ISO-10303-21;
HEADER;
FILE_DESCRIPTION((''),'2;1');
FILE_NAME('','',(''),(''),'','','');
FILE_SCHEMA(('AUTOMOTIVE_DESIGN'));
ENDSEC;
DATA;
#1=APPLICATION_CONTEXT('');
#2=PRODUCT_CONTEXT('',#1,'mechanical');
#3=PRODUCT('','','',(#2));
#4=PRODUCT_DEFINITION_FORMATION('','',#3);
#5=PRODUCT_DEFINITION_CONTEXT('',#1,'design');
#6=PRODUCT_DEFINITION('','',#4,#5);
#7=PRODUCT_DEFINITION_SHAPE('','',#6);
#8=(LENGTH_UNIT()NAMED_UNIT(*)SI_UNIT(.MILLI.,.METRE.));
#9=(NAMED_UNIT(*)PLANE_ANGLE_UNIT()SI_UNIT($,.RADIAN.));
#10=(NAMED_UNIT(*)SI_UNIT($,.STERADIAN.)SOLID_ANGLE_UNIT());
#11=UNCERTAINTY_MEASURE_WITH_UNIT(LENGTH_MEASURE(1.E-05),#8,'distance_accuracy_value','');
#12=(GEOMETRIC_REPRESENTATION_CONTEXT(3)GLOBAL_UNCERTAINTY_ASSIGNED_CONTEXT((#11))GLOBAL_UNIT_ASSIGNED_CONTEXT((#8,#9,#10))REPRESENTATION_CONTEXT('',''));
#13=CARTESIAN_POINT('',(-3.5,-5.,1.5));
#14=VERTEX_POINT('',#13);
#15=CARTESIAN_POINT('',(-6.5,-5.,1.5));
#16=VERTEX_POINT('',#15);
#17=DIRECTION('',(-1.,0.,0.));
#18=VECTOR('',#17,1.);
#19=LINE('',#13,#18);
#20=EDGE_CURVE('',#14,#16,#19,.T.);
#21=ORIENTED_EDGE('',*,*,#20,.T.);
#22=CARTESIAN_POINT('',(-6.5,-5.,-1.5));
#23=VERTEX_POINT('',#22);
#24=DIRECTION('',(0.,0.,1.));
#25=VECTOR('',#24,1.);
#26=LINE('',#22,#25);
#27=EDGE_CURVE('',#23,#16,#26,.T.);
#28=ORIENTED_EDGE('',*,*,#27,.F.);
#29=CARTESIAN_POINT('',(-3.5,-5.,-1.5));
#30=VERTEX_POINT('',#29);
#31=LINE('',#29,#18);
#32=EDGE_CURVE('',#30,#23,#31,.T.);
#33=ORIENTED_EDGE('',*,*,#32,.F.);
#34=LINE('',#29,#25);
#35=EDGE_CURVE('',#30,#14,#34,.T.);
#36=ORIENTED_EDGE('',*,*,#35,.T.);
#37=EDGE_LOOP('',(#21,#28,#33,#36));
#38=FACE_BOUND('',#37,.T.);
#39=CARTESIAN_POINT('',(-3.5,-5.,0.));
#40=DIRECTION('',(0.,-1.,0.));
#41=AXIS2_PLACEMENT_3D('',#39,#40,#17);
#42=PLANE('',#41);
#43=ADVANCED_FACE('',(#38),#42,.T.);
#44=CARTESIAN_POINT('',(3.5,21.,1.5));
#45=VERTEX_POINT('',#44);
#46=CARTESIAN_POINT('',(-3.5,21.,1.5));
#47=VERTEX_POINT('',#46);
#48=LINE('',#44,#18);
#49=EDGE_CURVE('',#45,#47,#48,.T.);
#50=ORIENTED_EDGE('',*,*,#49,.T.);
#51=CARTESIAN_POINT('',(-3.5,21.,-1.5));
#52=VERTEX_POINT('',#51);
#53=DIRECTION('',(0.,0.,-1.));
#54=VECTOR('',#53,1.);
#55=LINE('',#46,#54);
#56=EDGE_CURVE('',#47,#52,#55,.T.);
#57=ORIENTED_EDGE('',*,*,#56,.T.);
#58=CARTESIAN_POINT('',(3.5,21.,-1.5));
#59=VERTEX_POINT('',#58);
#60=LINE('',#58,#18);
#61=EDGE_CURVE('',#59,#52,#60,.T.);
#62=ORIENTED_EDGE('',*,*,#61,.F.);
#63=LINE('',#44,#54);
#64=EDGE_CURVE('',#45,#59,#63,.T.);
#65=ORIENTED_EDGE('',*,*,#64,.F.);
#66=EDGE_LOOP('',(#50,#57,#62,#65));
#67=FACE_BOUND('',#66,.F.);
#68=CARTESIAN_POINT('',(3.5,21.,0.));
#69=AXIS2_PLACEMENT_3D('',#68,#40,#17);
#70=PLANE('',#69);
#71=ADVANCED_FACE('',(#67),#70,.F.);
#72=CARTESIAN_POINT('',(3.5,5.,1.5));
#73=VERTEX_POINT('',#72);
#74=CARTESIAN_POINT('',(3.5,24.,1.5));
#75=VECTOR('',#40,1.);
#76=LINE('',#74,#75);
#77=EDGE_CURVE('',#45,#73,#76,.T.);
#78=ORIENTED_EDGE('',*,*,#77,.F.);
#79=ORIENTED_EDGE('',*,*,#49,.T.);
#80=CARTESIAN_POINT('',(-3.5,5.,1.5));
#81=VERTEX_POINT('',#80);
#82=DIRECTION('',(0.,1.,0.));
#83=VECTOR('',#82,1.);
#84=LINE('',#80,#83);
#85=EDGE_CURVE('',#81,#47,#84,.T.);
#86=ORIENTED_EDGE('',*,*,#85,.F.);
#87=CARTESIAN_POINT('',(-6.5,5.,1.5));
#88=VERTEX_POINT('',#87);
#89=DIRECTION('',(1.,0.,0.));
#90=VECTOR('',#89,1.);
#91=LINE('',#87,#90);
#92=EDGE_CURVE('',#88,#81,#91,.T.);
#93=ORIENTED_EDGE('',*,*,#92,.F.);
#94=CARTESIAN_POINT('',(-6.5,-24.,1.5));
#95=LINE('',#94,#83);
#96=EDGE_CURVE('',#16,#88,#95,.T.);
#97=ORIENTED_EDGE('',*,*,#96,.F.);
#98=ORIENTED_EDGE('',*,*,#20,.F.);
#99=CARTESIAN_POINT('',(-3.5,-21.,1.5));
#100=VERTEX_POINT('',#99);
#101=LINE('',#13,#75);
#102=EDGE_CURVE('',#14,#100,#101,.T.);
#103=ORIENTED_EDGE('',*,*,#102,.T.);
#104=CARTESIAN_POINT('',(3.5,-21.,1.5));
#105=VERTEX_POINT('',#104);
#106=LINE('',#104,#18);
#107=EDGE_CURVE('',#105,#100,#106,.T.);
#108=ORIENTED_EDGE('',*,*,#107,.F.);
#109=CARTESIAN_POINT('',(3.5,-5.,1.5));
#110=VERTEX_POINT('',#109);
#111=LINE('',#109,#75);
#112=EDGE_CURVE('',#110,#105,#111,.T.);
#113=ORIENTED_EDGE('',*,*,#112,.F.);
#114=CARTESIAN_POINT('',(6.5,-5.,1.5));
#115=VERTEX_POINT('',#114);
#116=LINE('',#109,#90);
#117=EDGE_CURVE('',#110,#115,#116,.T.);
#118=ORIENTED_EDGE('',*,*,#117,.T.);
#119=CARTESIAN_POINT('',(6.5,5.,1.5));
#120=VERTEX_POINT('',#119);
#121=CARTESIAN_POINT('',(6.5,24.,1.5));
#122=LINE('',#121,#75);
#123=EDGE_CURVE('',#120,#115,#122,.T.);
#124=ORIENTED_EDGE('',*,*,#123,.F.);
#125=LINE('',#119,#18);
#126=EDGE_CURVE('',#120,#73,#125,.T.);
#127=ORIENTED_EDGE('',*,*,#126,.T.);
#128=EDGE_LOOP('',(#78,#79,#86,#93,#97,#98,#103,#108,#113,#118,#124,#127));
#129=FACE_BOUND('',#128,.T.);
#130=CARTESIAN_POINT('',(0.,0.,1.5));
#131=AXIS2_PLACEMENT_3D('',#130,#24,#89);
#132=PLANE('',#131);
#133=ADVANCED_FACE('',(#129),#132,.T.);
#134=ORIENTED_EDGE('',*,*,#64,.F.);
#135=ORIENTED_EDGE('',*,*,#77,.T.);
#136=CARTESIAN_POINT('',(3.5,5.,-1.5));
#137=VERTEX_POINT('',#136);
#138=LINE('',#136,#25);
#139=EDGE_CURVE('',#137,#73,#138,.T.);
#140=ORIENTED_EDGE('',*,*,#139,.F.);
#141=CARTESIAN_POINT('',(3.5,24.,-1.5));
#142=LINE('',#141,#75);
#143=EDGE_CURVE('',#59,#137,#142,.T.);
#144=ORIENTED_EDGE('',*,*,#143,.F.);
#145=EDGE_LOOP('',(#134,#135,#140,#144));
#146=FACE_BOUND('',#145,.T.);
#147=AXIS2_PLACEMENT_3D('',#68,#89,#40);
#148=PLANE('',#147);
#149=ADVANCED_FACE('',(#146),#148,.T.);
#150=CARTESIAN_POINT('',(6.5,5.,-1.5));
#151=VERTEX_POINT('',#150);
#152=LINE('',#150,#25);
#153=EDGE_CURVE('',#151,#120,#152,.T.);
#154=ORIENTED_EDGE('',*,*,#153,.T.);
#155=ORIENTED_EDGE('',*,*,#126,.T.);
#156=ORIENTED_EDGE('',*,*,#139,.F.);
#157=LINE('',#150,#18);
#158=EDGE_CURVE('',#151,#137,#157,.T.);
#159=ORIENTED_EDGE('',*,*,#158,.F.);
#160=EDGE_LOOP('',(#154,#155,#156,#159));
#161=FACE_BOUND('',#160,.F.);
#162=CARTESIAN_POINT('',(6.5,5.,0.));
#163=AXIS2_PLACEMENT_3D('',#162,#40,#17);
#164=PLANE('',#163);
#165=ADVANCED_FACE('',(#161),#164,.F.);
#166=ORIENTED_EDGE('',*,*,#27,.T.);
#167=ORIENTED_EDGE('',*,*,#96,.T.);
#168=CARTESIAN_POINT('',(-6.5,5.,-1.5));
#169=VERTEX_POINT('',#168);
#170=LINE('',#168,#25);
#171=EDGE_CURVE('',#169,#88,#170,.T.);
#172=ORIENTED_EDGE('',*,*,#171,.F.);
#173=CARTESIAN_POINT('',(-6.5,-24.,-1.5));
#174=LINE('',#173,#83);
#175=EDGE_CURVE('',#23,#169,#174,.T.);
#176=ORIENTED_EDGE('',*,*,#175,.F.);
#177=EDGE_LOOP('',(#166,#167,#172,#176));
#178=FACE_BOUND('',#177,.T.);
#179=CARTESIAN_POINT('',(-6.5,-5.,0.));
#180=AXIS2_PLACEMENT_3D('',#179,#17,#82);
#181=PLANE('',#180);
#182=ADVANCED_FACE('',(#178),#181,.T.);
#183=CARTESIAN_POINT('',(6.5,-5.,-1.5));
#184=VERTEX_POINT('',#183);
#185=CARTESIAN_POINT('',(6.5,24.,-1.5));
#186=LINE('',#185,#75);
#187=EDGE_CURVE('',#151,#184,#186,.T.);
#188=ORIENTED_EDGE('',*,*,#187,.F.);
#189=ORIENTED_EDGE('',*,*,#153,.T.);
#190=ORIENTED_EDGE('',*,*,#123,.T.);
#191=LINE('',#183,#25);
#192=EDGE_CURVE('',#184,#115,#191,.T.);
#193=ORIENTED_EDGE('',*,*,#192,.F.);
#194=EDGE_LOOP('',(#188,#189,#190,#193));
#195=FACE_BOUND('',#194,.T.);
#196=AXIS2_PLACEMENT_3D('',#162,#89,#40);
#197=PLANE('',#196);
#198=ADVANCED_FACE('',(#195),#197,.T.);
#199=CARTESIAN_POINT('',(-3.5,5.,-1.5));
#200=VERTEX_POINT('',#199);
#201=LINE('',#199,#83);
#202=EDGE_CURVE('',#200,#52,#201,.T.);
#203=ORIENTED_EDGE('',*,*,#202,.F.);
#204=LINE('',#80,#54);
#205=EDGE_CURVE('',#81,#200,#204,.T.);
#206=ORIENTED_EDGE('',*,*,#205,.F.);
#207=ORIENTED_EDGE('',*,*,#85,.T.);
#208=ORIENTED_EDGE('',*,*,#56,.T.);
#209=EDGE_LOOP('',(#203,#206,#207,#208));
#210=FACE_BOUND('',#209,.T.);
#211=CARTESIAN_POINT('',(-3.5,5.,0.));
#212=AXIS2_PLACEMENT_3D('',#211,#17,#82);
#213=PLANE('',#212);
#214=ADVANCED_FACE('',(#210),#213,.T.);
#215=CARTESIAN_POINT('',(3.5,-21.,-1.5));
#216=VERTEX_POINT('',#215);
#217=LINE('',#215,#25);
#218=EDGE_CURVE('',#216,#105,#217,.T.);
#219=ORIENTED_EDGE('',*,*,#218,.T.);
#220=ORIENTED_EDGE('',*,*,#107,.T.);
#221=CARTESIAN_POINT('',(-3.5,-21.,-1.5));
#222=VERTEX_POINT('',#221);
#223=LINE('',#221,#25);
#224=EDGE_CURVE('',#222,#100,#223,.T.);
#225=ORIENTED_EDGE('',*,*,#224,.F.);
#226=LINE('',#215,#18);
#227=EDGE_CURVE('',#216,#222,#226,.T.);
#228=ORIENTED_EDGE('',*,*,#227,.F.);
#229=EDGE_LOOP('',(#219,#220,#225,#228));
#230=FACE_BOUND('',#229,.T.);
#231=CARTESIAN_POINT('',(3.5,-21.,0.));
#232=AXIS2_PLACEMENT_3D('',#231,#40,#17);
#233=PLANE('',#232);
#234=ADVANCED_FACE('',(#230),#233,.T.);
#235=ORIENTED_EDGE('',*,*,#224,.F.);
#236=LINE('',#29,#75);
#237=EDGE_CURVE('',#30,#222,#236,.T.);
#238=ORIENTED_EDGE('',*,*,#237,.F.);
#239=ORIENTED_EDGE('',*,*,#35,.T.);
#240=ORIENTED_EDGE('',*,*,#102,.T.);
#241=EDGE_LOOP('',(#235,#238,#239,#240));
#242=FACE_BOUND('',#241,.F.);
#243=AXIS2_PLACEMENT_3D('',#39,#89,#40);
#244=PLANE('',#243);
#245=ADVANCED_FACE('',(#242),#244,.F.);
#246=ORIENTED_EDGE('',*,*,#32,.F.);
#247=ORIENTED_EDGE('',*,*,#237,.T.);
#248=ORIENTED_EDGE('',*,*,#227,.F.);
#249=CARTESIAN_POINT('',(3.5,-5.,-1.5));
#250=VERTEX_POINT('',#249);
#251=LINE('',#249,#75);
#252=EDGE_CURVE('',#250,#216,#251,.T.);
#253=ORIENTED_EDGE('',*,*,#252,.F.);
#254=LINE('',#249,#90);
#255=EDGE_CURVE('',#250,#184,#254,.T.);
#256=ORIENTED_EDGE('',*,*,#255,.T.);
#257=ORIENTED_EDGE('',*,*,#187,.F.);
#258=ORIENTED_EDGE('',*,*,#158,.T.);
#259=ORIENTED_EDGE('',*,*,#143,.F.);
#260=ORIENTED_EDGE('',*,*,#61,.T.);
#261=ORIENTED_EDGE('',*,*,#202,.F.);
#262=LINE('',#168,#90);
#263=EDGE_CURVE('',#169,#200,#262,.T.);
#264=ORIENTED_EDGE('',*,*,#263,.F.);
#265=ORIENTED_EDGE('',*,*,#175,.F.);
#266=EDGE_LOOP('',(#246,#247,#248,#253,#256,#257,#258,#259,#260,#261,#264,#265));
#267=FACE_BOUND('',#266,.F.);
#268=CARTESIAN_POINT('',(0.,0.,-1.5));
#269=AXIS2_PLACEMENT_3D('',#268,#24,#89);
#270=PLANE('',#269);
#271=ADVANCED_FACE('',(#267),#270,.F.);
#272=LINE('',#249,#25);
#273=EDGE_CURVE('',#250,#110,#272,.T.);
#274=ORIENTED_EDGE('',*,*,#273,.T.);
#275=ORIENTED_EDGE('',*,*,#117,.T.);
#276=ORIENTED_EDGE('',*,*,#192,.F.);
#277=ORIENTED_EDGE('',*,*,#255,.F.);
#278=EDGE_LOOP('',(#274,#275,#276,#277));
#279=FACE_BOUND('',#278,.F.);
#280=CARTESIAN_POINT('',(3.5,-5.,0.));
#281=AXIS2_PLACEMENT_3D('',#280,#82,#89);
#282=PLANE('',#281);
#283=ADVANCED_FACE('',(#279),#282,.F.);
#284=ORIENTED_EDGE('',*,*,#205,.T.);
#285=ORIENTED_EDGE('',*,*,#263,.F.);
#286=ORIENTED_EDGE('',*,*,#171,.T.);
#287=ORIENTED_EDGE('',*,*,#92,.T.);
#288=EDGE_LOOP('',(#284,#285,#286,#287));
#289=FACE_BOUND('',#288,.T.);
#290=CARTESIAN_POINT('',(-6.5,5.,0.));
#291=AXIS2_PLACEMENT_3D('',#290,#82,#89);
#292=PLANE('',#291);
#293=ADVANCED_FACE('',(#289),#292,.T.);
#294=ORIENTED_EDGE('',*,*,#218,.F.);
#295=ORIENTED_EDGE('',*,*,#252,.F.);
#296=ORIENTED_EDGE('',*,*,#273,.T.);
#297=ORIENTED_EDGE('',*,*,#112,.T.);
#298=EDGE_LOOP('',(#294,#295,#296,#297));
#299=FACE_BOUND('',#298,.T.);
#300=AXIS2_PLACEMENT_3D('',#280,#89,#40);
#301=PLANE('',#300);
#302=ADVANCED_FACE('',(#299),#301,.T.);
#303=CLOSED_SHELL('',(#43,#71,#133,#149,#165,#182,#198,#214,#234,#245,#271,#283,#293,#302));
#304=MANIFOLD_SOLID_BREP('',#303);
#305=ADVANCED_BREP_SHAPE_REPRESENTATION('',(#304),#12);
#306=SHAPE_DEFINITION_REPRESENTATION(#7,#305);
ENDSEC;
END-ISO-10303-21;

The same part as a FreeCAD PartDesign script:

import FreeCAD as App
import Part
import Sketcher

V = App.Vector

doc = App.newDocument("Part")
body = doc.addObject("PartDesign::Body", "Body")

# Sketch on XY plane
sketch1 = body.newObject("Sketcher::SketchObject", "Sketch")
sketch1.AttachmentSupport = (doc.getObject("XY_Plane"), [""])
sketch1.MapMode = "FlatFace"
sketch1.addGeometry(Part.LineSegment(V(-3.5, 5, 0), V(-6.5, 5, 0)), False)
sketch1.addGeometry(Part.LineSegment(V(-6.5, 5, 0), V(-6.5, -5, 0)), False)
sketch1.addGeometry(Part.LineSegment(V(-6.5, -5, 0), V(-3.5, -5, 0)), False)
sketch1.addGeometry(Part.LineSegment(V(-3.5, -5, 0), V(-3.5, -21, 0)), False)
sketch1.addGeometry(Part.LineSegment(V(-3.5, -21, 0), V(3.5, -21, 0)), False)
sketch1.addGeometry(Part.LineSegment(V(3.5, -21, 0), V(3.5, -5, 0)), False)
sketch1.addGeometry(Part.LineSegment(V(3.5, -5, 0), V(6.5, -5, 0)), False)
sketch1.addGeometry(Part.LineSegment(V(6.5, -5, 0), V(6.5, 5, 0)), False)
sketch1.addGeometry(Part.LineSegment(V(6.5, 5, 0), V(3.5, 5, 0)), False)
sketch1.addGeometry(Part.LineSegment(V(3.5, 5, 0), V(3.5, 21, 0)), False)
sketch1.addGeometry(Part.LineSegment(V(3.5, 21, 0), V(-3.5, 21, 0)), False)
sketch1.addGeometry(Part.LineSegment(V(-3.5, 21, 0), V(-3.5, 5, 0)), False)
sketch1.addConstraint(Sketcher.Constraint("Coincident", 0, 2, 1, 1))
sketch1.addConstraint(Sketcher.Constraint("Coincident", 1, 2, 2, 1))
sketch1.addConstraint(Sketcher.Constraint("Coincident", 2, 2, 3, 1))
sketch1.addConstraint(Sketcher.Constraint("Coincident", 3, 2, 4, 1))
sketch1.addConstraint(Sketcher.Constraint("Coincident", 4, 2, 5, 1))
sketch1.addConstraint(Sketcher.Constraint("Coincident", 5, 2, 6, 1))
sketch1.addConstraint(Sketcher.Constraint("Coincident", 6, 2, 7, 1))
sketch1.addConstraint(Sketcher.Constraint("Coincident", 7, 2, 8, 1))
sketch1.addConstraint(Sketcher.Constraint("Coincident", 8, 2, 9, 1))
sketch1.addConstraint(Sketcher.Constraint("Coincident", 9, 2, 10, 1))
sketch1.addConstraint(Sketcher.Constraint("Coincident", 10, 2, 11, 1))
sketch1.addConstraint(Sketcher.Constraint("Coincident", 11, 2, 0, 1))
sketch1.addConstraint(Sketcher.Constraint("Horizontal", 0))
sketch1.addConstraint(Sketcher.Constraint("Vertical", 1))
sketch1.addConstraint(Sketcher.Constraint("Horizontal", 2))
sketch1.addConstraint(Sketcher.Constraint("Vertical", 3))
sketch1.addConstraint(Sketcher.Constraint("Horizontal", 4))
sketch1.addConstraint(Sketcher.Constraint("Vertical", 5))
sketch1.addConstraint(Sketcher.Constraint("Horizontal", 6))
sketch1.addConstraint(Sketcher.Constraint("Vertical", 7))
sketch1.addConstraint(Sketcher.Constraint("Horizontal", 8))
sketch1.addConstraint(Sketcher.Constraint("Vertical", 9))
sketch1.addConstraint(Sketcher.Constraint("Horizontal", 10))
sketch1.addConstraint(Sketcher.Constraint("Vertical", 11))
sketch1.addConstraint(Sketcher.Constraint("Symmetric", 0, 2, 6, 2, -1, 1))
sketch1.addConstraint(Sketcher.Constraint("Symmetric", 2, 2, 8, 2, -1, 1))
sketch1.addConstraint(Sketcher.Constraint("Symmetric", 4, 2, 10, 2, -1, 1))
sketch1.addConstraint(Sketcher.Constraint("Symmetric", 2, 2, 5, 2, -2))
sketch1.addConstraint(Sketcher.Constraint("DistanceX", 0, 2, 0, 1, 3.0))
sketch1.addConstraint(Sketcher.Constraint("DistanceX", 4, 1, 4, 2, 7.0))
sketch1.addConstraint(Sketcher.Constraint("DistanceY", 1, 2, 1, 1, 10.0))
sketch1.addConstraint(Sketcher.Constraint("DistanceY", 3, 2, 3, 1, 16.0))
pad1 = body.newObject("PartDesign::Pad", "Pad")
pad1.Profile = sketch1
pad1.Length = 3
pad1.Midplane = True

doc.recompute()
